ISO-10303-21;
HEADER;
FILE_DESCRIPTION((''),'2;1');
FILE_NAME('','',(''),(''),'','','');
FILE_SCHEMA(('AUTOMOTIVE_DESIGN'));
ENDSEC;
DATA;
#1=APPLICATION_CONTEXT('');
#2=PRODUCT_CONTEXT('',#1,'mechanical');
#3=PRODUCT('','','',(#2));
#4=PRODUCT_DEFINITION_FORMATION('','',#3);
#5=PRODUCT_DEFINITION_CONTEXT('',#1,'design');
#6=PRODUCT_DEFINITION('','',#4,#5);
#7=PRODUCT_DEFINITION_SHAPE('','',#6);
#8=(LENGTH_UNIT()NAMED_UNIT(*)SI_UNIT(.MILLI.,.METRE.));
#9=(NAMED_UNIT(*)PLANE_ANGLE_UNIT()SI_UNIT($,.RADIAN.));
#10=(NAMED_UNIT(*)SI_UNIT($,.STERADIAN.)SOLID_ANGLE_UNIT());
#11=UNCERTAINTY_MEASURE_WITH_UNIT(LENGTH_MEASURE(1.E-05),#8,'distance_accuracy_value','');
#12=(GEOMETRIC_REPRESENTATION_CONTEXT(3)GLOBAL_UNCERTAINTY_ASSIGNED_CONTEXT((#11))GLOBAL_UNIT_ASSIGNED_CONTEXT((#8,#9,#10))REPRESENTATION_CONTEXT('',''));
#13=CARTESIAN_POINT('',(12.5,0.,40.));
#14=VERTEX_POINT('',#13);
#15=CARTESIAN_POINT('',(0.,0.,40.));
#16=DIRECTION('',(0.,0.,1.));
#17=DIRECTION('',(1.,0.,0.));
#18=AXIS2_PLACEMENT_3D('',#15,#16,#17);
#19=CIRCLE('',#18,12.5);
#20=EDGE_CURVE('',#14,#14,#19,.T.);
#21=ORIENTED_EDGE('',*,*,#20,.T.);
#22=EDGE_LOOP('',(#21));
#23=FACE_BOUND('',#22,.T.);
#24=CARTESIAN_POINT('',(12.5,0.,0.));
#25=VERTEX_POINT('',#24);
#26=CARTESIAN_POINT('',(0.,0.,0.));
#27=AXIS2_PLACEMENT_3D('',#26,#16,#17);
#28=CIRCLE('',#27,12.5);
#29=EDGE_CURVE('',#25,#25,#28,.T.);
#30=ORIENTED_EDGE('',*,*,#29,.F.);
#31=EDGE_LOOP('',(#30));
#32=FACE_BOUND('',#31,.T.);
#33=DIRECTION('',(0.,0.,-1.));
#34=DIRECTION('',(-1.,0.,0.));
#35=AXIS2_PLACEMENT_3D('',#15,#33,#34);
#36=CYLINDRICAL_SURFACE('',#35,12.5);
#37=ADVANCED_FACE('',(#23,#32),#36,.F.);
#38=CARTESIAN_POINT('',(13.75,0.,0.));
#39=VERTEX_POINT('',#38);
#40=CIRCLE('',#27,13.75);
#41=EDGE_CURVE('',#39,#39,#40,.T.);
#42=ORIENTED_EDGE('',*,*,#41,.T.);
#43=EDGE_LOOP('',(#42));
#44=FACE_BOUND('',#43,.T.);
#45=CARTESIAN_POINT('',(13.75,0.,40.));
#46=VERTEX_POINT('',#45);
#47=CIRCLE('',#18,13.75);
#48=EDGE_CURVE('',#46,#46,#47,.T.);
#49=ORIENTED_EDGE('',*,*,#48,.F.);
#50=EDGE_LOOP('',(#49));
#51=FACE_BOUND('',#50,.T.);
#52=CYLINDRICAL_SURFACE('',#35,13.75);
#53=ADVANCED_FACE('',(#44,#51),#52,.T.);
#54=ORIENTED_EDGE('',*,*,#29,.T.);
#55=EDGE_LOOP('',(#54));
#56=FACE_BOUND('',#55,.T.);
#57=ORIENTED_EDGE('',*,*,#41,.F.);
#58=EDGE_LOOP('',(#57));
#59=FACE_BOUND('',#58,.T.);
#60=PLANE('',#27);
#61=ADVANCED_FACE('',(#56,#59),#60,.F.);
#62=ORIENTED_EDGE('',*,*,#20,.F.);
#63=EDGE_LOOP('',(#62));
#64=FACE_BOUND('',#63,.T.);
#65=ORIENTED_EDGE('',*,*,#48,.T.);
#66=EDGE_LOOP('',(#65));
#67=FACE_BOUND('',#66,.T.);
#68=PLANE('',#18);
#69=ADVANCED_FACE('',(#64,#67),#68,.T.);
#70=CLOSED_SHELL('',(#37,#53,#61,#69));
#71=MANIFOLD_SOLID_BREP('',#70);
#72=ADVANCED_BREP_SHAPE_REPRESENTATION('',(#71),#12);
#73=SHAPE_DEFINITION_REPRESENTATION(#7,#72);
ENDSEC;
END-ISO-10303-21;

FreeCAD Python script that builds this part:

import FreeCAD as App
import Part
import Sketcher

V = App.Vector

doc = App.newDocument("Part")
body = doc.addObject("PartDesign::Body", "Body")

# Sketch on XY plane
sketch1 = body.newObject("Sketcher::SketchObject", "Sketch")
sketch1.AttachmentSupport = (doc.getObject("XY_Plane"), [""])
sketch1.MapMode = "FlatFace"
sketch1.addGeometry([
    Part.Circle(V(0, 0, 0), V(0, 0, 1), 13.75),
    Part.Circle(V(0, 0, 0), V(0, 0, 1), 12.5),
], False)
sketch1.addConstraint([
    Sketcher.Constraint("Coincident", 0, 3, -1, 1),
    Sketcher.Constraint("Coincident", 1, 3, -1, 1),
    Sketcher.Constraint("Diameter", 1, 25.0),
    Sketcher.Constraint("Diameter", 0, 27.5),
])
pad1 = body.newObject("PartDesign::Pad", "Pad")
pad1.Profile = sketch1
pad1.Length = 40

doc.recompute()
